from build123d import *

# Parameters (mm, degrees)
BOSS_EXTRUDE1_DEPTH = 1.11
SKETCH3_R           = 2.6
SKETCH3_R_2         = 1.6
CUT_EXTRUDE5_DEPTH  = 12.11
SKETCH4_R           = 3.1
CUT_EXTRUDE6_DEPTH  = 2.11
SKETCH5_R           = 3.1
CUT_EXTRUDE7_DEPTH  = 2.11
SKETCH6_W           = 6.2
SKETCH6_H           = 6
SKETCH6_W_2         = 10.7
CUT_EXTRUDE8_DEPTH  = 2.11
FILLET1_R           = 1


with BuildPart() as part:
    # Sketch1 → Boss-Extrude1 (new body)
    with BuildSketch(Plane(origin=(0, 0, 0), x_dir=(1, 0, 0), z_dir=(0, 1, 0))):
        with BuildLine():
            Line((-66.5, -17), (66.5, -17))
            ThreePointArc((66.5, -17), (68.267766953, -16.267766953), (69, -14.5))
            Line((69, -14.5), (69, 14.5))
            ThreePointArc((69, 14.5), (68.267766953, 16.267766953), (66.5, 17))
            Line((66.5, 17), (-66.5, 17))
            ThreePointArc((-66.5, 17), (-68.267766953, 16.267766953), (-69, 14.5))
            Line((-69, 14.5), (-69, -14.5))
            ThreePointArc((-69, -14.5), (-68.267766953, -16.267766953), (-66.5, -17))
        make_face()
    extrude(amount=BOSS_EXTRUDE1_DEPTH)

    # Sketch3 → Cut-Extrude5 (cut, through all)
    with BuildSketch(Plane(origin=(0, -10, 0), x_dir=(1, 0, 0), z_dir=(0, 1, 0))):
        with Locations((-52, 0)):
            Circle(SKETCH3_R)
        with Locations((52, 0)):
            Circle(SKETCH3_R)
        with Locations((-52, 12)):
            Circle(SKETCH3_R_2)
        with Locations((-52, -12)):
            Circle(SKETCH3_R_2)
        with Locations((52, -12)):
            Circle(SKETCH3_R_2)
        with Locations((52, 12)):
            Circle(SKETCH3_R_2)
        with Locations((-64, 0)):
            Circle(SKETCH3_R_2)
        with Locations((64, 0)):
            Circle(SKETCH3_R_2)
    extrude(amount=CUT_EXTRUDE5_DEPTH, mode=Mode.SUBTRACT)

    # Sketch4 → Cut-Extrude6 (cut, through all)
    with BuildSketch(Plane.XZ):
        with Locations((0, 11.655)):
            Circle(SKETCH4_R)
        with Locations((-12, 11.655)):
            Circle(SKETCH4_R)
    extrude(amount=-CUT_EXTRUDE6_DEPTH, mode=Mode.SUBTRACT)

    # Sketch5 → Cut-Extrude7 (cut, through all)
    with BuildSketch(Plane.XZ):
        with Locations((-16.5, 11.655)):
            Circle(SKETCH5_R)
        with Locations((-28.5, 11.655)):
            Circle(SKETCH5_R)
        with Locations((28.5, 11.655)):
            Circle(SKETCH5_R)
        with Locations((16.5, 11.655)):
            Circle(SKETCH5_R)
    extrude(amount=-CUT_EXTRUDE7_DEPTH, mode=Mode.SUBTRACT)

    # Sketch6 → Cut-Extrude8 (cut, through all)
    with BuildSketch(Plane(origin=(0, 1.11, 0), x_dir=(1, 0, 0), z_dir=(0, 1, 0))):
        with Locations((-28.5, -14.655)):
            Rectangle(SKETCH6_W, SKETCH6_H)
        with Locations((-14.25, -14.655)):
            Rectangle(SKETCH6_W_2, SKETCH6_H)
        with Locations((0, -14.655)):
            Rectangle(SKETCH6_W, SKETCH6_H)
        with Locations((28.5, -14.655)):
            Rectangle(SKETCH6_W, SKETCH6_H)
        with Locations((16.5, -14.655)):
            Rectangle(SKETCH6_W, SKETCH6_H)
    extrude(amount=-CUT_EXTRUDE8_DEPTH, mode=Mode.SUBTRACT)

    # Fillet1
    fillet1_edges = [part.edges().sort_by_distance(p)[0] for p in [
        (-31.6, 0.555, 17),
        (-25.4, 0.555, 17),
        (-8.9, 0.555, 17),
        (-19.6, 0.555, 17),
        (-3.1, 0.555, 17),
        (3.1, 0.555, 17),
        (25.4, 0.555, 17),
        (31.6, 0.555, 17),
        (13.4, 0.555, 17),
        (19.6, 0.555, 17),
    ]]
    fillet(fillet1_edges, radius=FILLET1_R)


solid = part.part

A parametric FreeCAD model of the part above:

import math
import FreeCAD as App
import Part
import Sketcher

V = App.Vector


def edges_at(feature, points):
    """Names of the edges that pass closest to the given points."""
    edges = feature.Shape.Edges
    near = lambda p: min(range(len(edges)), key=lambda i: edges[i].distToShape(Part.Vertex(*p))[0])
    return sorted({f"Edge{near(p) + 1}" for p in points})


def add_polygon(sketch, points):
    """Adds a closed chain of lines whose ends are joined by coincident constraints."""
    first, n = sketch.GeometryCount, len(points)
    for a, b in zip(points, points[1:] + points[:1]):
        sketch.addGeometry(Part.LineSegment(App.Vector(*a, 0), App.Vector(*b, 0)), False)
    for i in range(n):
        sketch.addConstraint(Sketcher.Constraint("Coincident", first + i, 2, first + (i + 1) % n, 1))

doc = App.newDocument("Part")
body = doc.addObject("PartDesign::Body", "Body")

# Sketch on XZ plane
sketch1 = body.newObject("Sketcher::SketchObject", "Sketch")
sketch1.AttachmentSupport = (doc.getObject("XZ_Plane"), [""])
sketch1.MapMode = "FlatFace"
sketch1.addGeometry([
    Part.LineSegment(V(-66.5, 17, 0), V(66.5, 17, 0)),  # 0
    Part.ArcOfCircle(Part.Circle(V(66.5, 14.5, 0), V(0, 0, 1), 2.5), math.radians(0), math.radians(90)),  # 1
    Part.LineSegment(V(69, 14.5, 0), V(69, -14.5, 0)),  # 2
    Part.ArcOfCircle(Part.Circle(V(66.5, -14.5, 0), V(0, 0, 1), 2.5), math.radians(-90), math.radians(0)),  # 3
    Part.LineSegment(V(66.5, -17, 0), V(-66.5, -17, 0)),  # 4
    Part.ArcOfCircle(Part.Circle(V(-66.5, -14.5, 0), V(0, 0, 1), 2.5), math.radians(180), math.radians(270)),  # 5
    Part.LineSegment(V(-69, -14.5, 0), V(-69, 14.5, 0)),  # 6
    Part.ArcOfCircle(Part.Circle(V(-66.5, 14.5, 0), V(0, 0, 1), 2.5), math.radians(90), math.radians(180)),  # 7
], False)
sketch1.addConstraint([
    Sketcher.Constraint("Tangent", 0, 2, 1, 2),
    Sketcher.Constraint("Tangent", 1, 1, 2, 1),
    Sketcher.Constraint("Tangent", 2, 2, 3, 2),
    Sketcher.Constraint("Tangent", 3, 1, 4, 1),
    Sketcher.Constraint("Tangent", 4, 2, 5, 2),
    Sketcher.Constraint("Tangent", 5, 1, 6, 1),
    Sketcher.Constraint("Tangent", 6, 2, 7, 2),
    Sketcher.Constraint("Tangent", 7, 1, 0, 1),
    Sketcher.Constraint("Horizontal", 0),
    Sketcher.Constraint("Vertical", 2),
    Sketcher.Constraint("Horizontal", 4),
    Sketcher.Constraint("Vertical", 6),
    Sketcher.Constraint("Equal", 1, 3),
    Sketcher.Constraint("Equal", 3, 5),
    Sketcher.Constraint("Equal", 5, 7),
    Sketcher.Constraint("Symmetric", 1, 3, 5, 3, -1, 1),
    Sketcher.Constraint("Radius", 1, 2.5),
    Sketcher.Constraint("DistanceX", 0, 1, 0, 2, 133.0),
    Sketcher.Constraint("DistanceY", 2, 2, 2, 1, 29.0),
])
pad1 = body.newObject("PartDesign::Pad", "Pad")
pad1.Profile = sketch1
pad1.Length = 1.11
pad1.Reversed = True

# Sketch on XZ plane
sketch2 = body.newObject("Sketcher::SketchObject", "Sketch001")
sketch2.AttachmentSupport = (doc.getObject("XZ_Plane"), [""])
sketch2.MapMode = "FlatFace"
sketch2.AttachmentOffset = App.Placement(V(0, 0, 10), App.Rotation())
sketch2.addGeometry([
    Part.Circle(V(-52, 0, 0), V(0, 0, 1), 2.6),  # 0
    Part.Circle(V(52, 0, 0), V(0, 0, 1), 2.6),  # 1
    Part.Circle(V(-52, -12, 0), V(0, 0, 1), 1.6),  # 2
    Part.Circle(V(-52, 12, 0), V(0, 0, 1), 1.6),  # 3
    Part.Circle(V(52, 12, 0), V(0, 0, 1), 1.6),  # 4
    Part.Circle(V(52, -12, 0), V(0, 0, 1), 1.6),  # 5
    Part.Circle(V(-64, 0, 0), V(0, 0, 1), 1.6),  # 6
    Part.Circle(V(64, 0, 0), V(0, 0, 1), 1.6),  # 7
], False)
sketch2.addConstraint([
    Sketcher.Constraint("Equal", 0, 1),
    Sketcher.Constraint("Equal", 2, 3),
    Sketcher.Constraint("Equal", 3, 4),
    Sketcher.Constraint("Equal", 4, 5),
    Sketcher.Constraint("Equal", 5, 6),
    Sketcher.Constraint("Equal", 6, 7),
    Sketcher.Constraint("Symmetric", 0, 3, 1, 3, -1, 1),
    Sketcher.Constraint("Symmetric", 2, 3, 4, 3, -1, 1),
    Sketcher.Constraint("Symmetric", 3, 3, 5, 3, -1, 1),
    Sketcher.Constraint("Symmetric", 6, 3, 7, 3, -1, 1),
    Sketcher.Constraint("Symmetric", 3, 3, 4, 3, -2),
    Sketcher.Constraint("PointOnObject", 0, 3, -1),
    Sketcher.Constraint("PointOnObject", 6, 3, -1),
    Sketcher.Constraint("Vertical", 0, 3, 2, 3),
    Sketcher.Constraint("Diameter", 0, 5.2),
    Sketcher.Constraint("Diameter", 2, 3.2),
    Sketcher.Constraint("DistanceX", 0, 3, -1, 1, 52.0),
    Sketcher.Constraint("DistanceY", 2, 3, -1, 1, 12.0),
    Sketcher.Constraint("DistanceX", 6, 3, -1, 1, 64.0),
])
pocket1 = body.newObject("PartDesign::Pocket", "Pocket")
pocket1.Profile = sketch2
pocket1.Type = "ThroughAll"

# Sketch on XZ plane
sketch3 = body.newObject("Sketcher::SketchObject", "Sketch002")
sketch3.AttachmentSupport = (doc.getObject("XZ_Plane"), [""])
sketch3.MapMode = "FlatFace"
sketch3.addGeometry([
    Part.Circle(V(0, 11.655, 0), V(0, 0, 1), 3.1),
    Part.Circle(V(-12, 11.655, 0), V(0, 0, 1), 3.1),
], False)
sketch3.addConstraint([
    Sketcher.Constraint("Equal", 0, 1),
    Sketcher.Constraint("PointOnObject", 0, 3, -2),
    Sketcher.Constraint("Horizontal", 0, 3, 1, 3),
    Sketcher.Constraint("Diameter", 0, 6.2),
    Sketcher.Constraint("DistanceX", 1, 3, -1, 1, 12.0),
    Sketcher.Constraint("DistanceY", -1, 1, 0, 3, 11.655),
])
pocket2 = body.newObject("PartDesign::Pocket", "Pocket001")
pocket2.Profile = sketch3
pocket2.Type = "ThroughAll"

# Sketch on XZ plane
sketch4 = body.newObject("Sketcher::SketchObject", "Sketch003")
sketch4.AttachmentSupport = (doc.getObject("XZ_Plane"), [""])
sketch4.MapMode = "FlatFace"
sketch4.addGeometry([
    Part.Circle(V(-16.5, 11.655, 0), V(0, 0, 1), 3.1),
    Part.Circle(V(-28.5, 11.655, 0), V(0, 0, 1), 3.1),
    Part.Circle(V(28.5, 11.655, 0), V(0, 0, 1), 3.1),
    Part.Circle(V(16.5, 11.655, 0), V(0, 0, 1), 3.1),
], False)
sketch4.addConstraint([
    Sketcher.Constraint("Equal", 0, 1),
    Sketcher.Constraint("Equal", 1, 2),
    Sketcher.Constraint("Equal", 2, 3),
    Sketcher.Constraint("Symmetric", 1, 3, 2, 3, -2),
    Sketcher.Constraint("Symmetric", 0, 3, 3, 3, -2),
    Sketcher.Constraint("Horizontal", 0, 3, 1, 3),
    Sketcher.Constraint("Diameter", 0, 6.2),
    Sketcher.Constraint("DistanceX", 1, 3, 0, 3, 12.0),
    Sketcher.Constraint("DistanceX", 0, 3, 2, 3, 45.0),
    Sketcher.Constraint("DistanceY", -1, 1, 0, 3, 11.655),
])
pocket3 = body.newObject("PartDesign::Pocket", "Pocket002")
pocket3.Profile = sketch4
pocket3.Type = "ThroughAll"

# Sketch on XZ plane
sketch5 = body.newObject("Sketcher::SketchObject", "Sketch004")
sketch5.AttachmentSupport = (doc.getObject("XZ_Plane"), [""])
sketch5.MapMode = "FlatFace"
sketch5.AttachmentOffset = App.Placement(V(0, 0, -1.11), App.Rotation())
add_polygon(sketch5, [(-31.6, 11.655), (-31.6, 17.655), (-25.4, 17.655), (-25.4, 11.655)])  # lines 0-3
add_polygon(sketch5, [(-19.6, 11.655), (-19.6, 17.655), (-8.9, 17.655), (-8.9, 11.655)])  # lines 4-7
add_polygon(sketch5, [(-3.1, 11.655), (-3.1, 17.655), (3.1, 17.655), (3.1, 11.655)])  # lines 8-11
add_polygon(sketch5, [(25.4, 11.655), (25.4, 17.655), (31.6, 17.655), (31.6, 11.655)])  # lines 12-15
add_polygon(sketch5, [(13.4, 11.655), (13.4, 17.655), (19.6, 17.655), (19.6, 11.655)])  # lines 16-19
sketch5.addConstraint([
    Sketcher.Constraint("Vertical", 0),
    Sketcher.Constraint("Horizontal", 1),
    Sketcher.Constraint("Vertical", 2),
    Sketcher.Constraint("Horizontal", 3),
    Sketcher.Constraint("Vertical", 4),
    Sketcher.Constraint("Horizontal", 5),
    Sketcher.Constraint("Vertical", 6),
    Sketcher.Constraint("Horizontal", 7),
    Sketcher.Constraint("Vertical", 8),
    Sketcher.Constraint("Horizontal", 9),
    Sketcher.Constraint("Vertical", 10),
    Sketcher.Constraint("Horizontal", 11),
    Sketcher.Constraint("Vertical", 12),
    Sketcher.Constraint("Horizontal", 13),
    Sketcher.Constraint("Vertical", 14),
    Sketcher.Constraint("Horizontal", 15),
    Sketcher.Constraint("Vertical", 16),
    Sketcher.Constraint("Horizontal", 17),
    Sketcher.Constraint("Vertical", 18),
    Sketcher.Constraint("Horizontal", 19),
    Sketcher.Constraint("Symmetric", 1, 2, 12, 2, -2),
    Sketcher.Constraint("Symmetric", 3, 2, 14, 2, -2),
    Sketcher.Constraint("Symmetric", 4, 2, 17, 2, -2),
    Sketcher.Constraint("Horizontal", 1, 2, 4, 2),
    Sketcher.Constraint("Horizontal", 3, 2, 6, 2),
    Sketcher.Constraint("Horizontal", 5, 2, 8, 2),
    Sketcher.Constraint("Horizontal", 7, 2, 10, 2),
    Sketcher.Constraint("Horizontal", 15, 2, 18, 2),
    Sketcher.Constraint("Equal", 3, 9),
    Sketcher.Constraint("Equal", 15, 17),
    Sketcher.Constraint("DistanceY", 0, 1, 0, 2, 6.0),
    Sketcher.Constraint("DistanceX", 1, 1, 1, 2, 6.2),
    Sketcher.Constraint("DistanceX", 5, 1, 5, 2, 10.7),
    Sketcher.Constraint("DistanceX", 0, 2, 4, 2, 12.0),
    Sketcher.Constraint("DistanceX", 5, 2, 9, 2, 12.0),
    Sketcher.Constraint("DistanceX", 0, 2, -1, 1, 31.6),
    Sketcher.Constraint("DistanceY", -1, 1, 0, 2, 17.655),
])
pocket4 = body.newObject("PartDesign::Pocket", "Pocket003")
pocket4.Profile = sketch5
pocket4.Type = "ThroughAll"
pocket4.Reversed = True
doc.recompute()

fillet = body.newObject("PartDesign::Fillet", "Fillet")
fillet.Base = (pocket4, edges_at(pocket4, [
    (-31.6, 0.555, 17),
    (-25.4, 0.555, 17),
    (-8.9, 0.555, 17),
    (-19.6, 0.555, 17),
    (-3.1, 0.555, 17),
    (3.1, 0.555, 17),
    (25.4, 0.555, 17),
    (31.6, 0.555, 17),
    (13.4, 0.555, 17),
    (19.6, 0.555, 17),
]))
fillet.Radius = 1

doc.recompute()
